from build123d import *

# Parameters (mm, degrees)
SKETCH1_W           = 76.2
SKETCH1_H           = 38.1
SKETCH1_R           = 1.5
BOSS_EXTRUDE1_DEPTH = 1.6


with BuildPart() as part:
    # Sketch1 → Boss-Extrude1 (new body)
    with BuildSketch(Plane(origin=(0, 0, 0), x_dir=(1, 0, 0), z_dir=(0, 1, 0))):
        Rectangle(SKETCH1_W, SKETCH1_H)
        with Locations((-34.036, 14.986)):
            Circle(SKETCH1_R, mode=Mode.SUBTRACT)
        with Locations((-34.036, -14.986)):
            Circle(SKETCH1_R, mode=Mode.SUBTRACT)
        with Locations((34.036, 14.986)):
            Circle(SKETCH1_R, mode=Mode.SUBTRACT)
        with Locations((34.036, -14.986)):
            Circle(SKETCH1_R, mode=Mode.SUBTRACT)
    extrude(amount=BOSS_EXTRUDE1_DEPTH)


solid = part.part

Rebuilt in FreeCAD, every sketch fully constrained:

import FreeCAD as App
import Part
import Sketcher

V = App.Vector
Q = App.Units.Quantity


def add_polygon(sketch, points):
    """Adds a closed chain of lines whose ends are joined by coincident constraints."""
    first, n = sketch.GeometryCount, len(points)
    for a, b in zip(points, points[1:] + points[:1]):
        sketch.addGeometry(Part.LineSegment(App.Vector(*a, 0), App.Vector(*b, 0)), False)
    for i in range(n):
        sketch.addConstraint(Sketcher.Constraint("Coincident", first + i, 2, first + (i + 1) % n, 1))

doc = App.newDocument("Part")
body = doc.addObject("PartDesign::Body", "Body")

# Sketch on XZ plane
sketch1 = body.newObject("Sketcher::SketchObject", "Sketch")
sketch1.AttachmentSupport = (doc.getObject("XZ_Plane"), [""])
sketch1.MapMode = "FlatFace"
add_polygon(sketch1, [(-38.1, -19.1), (-38.1, 19.1), (38.1, 19.1), (38.1, -19.1)])  # lines 0-3
sketch1.addGeometry(Part.Circle(V(-34, 15, 0), V(0, 0, 1), 1.5), False)  # 4
sketch1.addGeometry(Part.Circle(V(34, 15, 0), V(0, 0, 1), 1.5), False)  # 5
sketch1.addGeometry(Part.Circle(V(-34, -15, 0), V(0, 0, 1), 1.5), False)  # 6
sketch1.addGeometry(Part.Circle(V(34, -15, 0), V(0, 0, 1), 1.5), False)  # 7
sketch1.addConstraint(Sketcher.Constraint("Vertical", 0))
sketch1.addConstraint(Sketcher.Constraint("Horizontal", 1))
sketch1.addConstraint(Sketcher.Constraint("Vertical", 2))
sketch1.addConstraint(Sketcher.Constraint("Horizontal", 3))
sketch1.addConstraint(Sketcher.Constraint("Equal", 4, 5))
sketch1.addConstraint(Sketcher.Constraint("Equal", 5, 6))
sketch1.addConstraint(Sketcher.Constraint("Equal", 6, 7))
sketch1.addConstraint(Sketcher.Constraint("Symmetric", 5, 3, 6, 3, -1, 1))
sketch1.addConstraint(Sketcher.Constraint("Symmetric", 4, 3, 7, 3, -1, 1))
sketch1.addConstraint(Sketcher.Constraint("Symmetric", 0, 2, 2, 2, -1, 1))
sketch1.addConstraint(Sketcher.Constraint("Symmetric", 4, 3, 5, 3, -2))
sketch1.addConstraint(Sketcher.Constraint("Diameter", 4, Q("3 mm")))
sketch1.addConstraint(Sketcher.Constraint("DistanceX", 1, 1, 1, 2, Q("76.2 mm")))
sketch1.addConstraint(Sketcher.Constraint("DistanceY", 0, 1, 0, 2, Q("38.1 mm")))
sketch1.addConstraint(Sketcher.Constraint("DistanceX", 4, 3, -1, 1, Q("34.036 mm")))
sketch1.addConstraint(Sketcher.Constraint("DistanceY", -1, 1, 4, 3, Q("14.986 mm")))
pad1 = body.newObject("PartDesign::Pad", "Pad")
pad1.Profile = sketch1
pad1.Length = 1.6
pad1.Reversed = True

doc.recompute()
